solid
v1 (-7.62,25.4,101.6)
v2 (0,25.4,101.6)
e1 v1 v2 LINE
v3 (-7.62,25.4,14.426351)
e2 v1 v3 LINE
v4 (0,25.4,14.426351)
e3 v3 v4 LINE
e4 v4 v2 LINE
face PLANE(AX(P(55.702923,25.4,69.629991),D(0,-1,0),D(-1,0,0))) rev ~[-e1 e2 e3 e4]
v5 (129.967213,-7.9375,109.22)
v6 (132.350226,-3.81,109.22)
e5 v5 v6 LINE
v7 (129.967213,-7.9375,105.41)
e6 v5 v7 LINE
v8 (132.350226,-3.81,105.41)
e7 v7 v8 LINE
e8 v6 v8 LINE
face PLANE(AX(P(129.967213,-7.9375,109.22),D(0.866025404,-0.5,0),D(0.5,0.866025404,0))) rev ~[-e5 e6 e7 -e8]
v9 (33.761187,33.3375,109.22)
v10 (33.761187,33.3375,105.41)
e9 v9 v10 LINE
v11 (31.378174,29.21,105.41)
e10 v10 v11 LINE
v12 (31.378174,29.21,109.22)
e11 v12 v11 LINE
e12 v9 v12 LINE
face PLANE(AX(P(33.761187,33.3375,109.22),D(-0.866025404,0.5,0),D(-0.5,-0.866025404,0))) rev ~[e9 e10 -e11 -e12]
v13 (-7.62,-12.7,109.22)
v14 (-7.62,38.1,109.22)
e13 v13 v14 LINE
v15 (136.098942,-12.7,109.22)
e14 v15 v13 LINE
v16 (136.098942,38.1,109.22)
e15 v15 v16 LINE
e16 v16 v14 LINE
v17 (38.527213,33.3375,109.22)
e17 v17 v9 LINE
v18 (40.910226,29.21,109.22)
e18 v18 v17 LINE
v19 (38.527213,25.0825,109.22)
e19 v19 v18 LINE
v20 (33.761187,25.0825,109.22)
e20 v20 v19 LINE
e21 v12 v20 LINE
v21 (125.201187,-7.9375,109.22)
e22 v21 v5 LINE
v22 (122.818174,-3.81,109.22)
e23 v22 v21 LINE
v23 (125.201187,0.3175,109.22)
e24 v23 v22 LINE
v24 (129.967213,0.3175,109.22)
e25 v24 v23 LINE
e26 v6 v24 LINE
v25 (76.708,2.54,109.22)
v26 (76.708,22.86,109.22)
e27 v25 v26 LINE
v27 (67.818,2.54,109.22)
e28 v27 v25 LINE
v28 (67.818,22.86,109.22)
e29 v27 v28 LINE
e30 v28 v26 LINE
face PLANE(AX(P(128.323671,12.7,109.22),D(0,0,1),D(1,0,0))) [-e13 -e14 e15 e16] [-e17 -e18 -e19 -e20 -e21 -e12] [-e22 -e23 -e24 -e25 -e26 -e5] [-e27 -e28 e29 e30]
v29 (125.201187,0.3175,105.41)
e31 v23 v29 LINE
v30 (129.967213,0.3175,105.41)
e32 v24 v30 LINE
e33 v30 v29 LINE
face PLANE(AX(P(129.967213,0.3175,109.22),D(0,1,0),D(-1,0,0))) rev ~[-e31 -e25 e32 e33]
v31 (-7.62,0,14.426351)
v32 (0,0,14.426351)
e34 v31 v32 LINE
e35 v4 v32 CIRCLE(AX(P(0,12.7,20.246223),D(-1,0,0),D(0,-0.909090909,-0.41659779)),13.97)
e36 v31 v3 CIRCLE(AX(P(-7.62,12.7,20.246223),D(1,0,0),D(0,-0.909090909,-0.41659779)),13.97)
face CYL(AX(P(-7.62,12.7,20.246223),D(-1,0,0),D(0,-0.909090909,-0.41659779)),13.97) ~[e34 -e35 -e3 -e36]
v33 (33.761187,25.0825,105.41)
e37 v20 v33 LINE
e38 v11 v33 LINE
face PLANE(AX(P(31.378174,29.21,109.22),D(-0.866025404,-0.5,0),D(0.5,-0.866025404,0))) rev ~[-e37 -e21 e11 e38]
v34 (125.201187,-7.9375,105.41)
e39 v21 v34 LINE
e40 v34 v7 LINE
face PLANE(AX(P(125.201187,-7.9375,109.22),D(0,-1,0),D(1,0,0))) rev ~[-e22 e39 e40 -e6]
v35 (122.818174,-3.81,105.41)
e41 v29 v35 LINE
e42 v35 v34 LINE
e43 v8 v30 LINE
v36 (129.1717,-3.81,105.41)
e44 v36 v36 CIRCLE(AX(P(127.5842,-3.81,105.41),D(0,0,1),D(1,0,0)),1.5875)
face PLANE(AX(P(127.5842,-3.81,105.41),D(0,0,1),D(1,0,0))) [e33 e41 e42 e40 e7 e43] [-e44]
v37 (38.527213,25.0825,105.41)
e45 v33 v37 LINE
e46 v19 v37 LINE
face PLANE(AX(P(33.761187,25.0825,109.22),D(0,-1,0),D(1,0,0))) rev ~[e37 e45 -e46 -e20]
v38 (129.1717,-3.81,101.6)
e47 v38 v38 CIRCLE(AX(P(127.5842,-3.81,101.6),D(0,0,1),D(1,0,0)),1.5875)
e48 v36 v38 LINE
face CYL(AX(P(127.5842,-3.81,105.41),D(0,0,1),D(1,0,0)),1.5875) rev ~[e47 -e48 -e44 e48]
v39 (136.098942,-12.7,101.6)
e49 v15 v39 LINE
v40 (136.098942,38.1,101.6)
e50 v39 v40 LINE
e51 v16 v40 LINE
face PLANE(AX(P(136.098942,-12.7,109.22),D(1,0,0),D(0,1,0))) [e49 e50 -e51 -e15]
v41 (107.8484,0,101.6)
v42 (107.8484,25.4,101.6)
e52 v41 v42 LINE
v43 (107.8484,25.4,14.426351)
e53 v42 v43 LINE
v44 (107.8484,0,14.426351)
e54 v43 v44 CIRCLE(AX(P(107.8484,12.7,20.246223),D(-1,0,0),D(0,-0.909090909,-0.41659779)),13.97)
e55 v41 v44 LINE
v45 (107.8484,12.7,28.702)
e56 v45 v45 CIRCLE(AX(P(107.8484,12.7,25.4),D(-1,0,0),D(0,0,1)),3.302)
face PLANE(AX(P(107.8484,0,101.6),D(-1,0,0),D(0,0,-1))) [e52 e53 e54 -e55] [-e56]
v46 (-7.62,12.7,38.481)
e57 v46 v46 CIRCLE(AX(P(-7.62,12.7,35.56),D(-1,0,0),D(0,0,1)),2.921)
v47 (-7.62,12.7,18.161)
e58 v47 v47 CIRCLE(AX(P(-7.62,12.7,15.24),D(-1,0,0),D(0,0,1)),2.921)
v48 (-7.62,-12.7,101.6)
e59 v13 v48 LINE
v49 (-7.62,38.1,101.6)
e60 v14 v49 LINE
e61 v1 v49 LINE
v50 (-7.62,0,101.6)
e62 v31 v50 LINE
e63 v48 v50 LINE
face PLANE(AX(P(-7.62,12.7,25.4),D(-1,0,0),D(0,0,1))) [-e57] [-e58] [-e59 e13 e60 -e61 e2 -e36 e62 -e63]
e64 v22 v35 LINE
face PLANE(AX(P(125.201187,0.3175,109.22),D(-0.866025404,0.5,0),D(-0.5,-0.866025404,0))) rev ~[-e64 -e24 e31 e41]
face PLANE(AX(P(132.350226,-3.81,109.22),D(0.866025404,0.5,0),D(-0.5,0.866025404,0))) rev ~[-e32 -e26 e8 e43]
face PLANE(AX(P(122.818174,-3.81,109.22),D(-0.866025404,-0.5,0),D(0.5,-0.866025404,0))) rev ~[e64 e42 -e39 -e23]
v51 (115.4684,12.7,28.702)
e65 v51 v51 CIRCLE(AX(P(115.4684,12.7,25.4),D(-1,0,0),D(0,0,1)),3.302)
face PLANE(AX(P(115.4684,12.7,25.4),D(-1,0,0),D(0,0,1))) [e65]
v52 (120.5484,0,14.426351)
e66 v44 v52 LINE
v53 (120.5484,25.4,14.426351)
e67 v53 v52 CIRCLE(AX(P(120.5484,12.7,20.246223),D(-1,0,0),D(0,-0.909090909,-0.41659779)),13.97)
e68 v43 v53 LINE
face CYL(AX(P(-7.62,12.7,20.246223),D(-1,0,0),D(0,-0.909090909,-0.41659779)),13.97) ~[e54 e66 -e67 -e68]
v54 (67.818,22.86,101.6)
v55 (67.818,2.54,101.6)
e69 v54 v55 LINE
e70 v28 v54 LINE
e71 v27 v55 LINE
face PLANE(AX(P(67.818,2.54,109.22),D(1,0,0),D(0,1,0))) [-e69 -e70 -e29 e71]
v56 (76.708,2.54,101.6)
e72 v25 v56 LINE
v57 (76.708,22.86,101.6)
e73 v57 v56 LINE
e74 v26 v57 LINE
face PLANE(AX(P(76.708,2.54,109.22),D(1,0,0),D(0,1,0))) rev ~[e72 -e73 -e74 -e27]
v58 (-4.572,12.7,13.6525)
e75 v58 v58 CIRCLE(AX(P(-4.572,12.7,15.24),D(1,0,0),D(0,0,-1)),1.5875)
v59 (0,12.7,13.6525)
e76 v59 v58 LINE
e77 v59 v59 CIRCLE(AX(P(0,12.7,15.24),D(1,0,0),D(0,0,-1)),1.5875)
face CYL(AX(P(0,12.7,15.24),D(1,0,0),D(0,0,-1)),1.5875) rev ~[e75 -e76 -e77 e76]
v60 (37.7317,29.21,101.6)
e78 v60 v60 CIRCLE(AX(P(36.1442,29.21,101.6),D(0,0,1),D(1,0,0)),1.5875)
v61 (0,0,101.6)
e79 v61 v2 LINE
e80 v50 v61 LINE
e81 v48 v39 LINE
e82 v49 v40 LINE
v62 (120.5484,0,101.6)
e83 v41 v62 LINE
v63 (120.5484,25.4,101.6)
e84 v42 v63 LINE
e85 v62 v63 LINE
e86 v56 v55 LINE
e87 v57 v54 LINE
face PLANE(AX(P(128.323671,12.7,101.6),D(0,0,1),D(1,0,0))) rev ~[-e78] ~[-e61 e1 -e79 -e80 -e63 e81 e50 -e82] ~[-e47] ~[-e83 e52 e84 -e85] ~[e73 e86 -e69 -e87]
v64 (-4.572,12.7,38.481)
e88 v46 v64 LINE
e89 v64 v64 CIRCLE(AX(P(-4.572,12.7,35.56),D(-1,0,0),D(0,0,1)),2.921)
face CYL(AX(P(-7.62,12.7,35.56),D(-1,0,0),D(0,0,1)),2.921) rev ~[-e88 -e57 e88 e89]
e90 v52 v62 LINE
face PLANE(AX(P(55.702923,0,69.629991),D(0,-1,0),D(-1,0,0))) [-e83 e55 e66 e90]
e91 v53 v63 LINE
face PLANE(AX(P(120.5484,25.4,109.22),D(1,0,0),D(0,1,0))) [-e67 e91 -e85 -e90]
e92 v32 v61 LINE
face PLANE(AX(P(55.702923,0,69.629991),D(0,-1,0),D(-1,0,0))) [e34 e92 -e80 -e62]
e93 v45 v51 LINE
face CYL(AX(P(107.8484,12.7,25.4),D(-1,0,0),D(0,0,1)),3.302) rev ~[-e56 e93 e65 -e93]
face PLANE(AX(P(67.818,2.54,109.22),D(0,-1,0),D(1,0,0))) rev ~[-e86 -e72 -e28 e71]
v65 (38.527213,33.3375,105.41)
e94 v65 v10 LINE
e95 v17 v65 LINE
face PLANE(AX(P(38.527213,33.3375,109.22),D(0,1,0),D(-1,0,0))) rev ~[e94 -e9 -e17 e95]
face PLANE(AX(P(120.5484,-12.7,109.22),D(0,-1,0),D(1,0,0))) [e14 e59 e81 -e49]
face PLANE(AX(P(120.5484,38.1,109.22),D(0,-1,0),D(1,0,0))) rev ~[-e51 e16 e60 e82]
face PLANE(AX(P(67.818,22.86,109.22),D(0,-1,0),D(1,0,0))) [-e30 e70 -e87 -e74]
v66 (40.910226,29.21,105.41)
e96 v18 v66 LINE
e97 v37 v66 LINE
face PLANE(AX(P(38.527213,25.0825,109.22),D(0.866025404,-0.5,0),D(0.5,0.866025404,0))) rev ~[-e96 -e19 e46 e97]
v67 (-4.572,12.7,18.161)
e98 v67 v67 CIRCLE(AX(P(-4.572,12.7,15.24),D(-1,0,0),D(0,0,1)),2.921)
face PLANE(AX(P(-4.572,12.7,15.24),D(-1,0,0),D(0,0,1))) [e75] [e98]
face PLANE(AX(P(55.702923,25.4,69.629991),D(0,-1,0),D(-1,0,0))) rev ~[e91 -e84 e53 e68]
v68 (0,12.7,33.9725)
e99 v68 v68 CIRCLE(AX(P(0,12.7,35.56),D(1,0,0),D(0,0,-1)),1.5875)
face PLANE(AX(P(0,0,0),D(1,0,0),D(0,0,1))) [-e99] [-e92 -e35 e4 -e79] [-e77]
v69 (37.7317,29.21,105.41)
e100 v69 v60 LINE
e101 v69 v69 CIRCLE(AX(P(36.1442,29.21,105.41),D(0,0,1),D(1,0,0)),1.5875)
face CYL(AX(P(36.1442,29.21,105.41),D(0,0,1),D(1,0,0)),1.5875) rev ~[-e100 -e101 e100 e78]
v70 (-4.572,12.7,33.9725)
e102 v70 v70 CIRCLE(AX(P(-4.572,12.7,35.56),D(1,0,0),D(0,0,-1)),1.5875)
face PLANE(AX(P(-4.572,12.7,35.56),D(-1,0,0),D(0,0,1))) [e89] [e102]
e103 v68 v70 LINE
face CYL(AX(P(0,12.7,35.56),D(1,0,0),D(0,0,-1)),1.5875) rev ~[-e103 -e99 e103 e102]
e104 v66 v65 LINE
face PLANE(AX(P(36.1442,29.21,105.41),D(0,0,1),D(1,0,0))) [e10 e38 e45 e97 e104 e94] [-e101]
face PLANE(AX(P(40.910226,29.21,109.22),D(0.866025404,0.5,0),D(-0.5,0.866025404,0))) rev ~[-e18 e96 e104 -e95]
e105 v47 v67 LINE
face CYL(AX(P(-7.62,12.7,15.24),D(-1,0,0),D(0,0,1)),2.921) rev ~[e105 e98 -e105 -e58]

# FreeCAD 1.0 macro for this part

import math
import FreeCAD as App
import Part
import Sketcher
Q = App.Units.Quantity


def add_polygon(sketch, points):
    """Adds a closed chain of lines whose ends are joined by coincident constraints."""
    first, n = sketch.GeometryCount, len(points)
    for a, b in zip(points, points[1:] + points[:1]):
        sketch.addGeometry(Part.LineSegment(App.Vector(*a, 0), App.Vector(*b, 0)), False)
    for i in range(n):
        sketch.addConstraint(Sketcher.Constraint("Coincident", first + i, 2, first + (i + 1) % n, 1))

doc = App.newDocument("Part")
body = doc.addObject("PartDesign::Body", "Body")

sketch1 = doc.addObject("Sketcher::SketchObject", "Sketch")
body.addObject(sketch1)
sketch1.AttachmentSupport = (doc.XZ_Plane, [""])
sketch1.MapMode = "FlatFace"
add_polygon(sketch1, [(0, 101.6), (0, 0), (-7.62, 0), (-7.62, 109.22), (120.5484, 109.22), (120.5484, 0), (107.8484, 0), (107.8484, 101.6)])
sketch1.addConstraint(Sketcher.Constraint("Vertical", 0))
sketch1.addConstraint(Sketcher.Constraint("Horizontal", 1))
sketch1.addConstraint(Sketcher.Constraint("Vertical", 2))
sketch1.addConstraint(Sketcher.Constraint("Horizontal", 3))
sketch1.addConstraint(Sketcher.Constraint("Vertical", 4))
sketch1.addConstraint(Sketcher.Constraint("Horizontal", 5))
sketch1.addConstraint(Sketcher.Constraint("Vertical", 6))
sketch1.addConstraint(Sketcher.Constraint("Horizontal", 7))
sketch1.addConstraint(Sketcher.Constraint("Coincident", 0, 2, -1, 1))
sketch1.addConstraint(Sketcher.Constraint("PointOnObject", 4, 2, -1))
sketch1.addConstraint(Sketcher.Constraint("DistanceY", 0, 2, 0, 1, Q("4 in")))
sketch1.addConstraint(Sketcher.Constraint("DistanceX", 1, 2, 1, 1, Q("0.3 in")))
sketch1.addConstraint(Sketcher.Constraint("DistanceX", 5, 2, 5, 1, Q("0.5 in")))
sketch1.addConstraint(Sketcher.Constraint("DistanceY", 2, 1, 2, 2, Q("4.3 in")))
sketch1.addConstraint(Sketcher.Constraint("DistanceX", 3, 1, 3, 2, Q("5.046 in")))
pad1 = doc.addObject("PartDesign::Pad", "Pad")
body.addObject(pad1)
pad1.Profile = sketch1
pad1.Length = Q("1 in")
pad1.Reversed = True

sketch2 = doc.addObject("Sketcher::SketchObject", "Sketch001")
body.addObject(sketch2)
sketch2.AttachmentSupport = (doc.YZ_Plane, [""])
sketch2.MapMode = "FlatFace"
sketch2.AttachmentOffset = App.Placement(App.Vector(0, 0, 4.246 * 25.4), App.Rotation())
sketch2.addGeometry(Part.Circle(App.Vector(12.7, 25.4, 0), App.Vector(0, 0, 1), 3.302), False)
sketch2.addConstraint(Sketcher.Constraint("Diameter", 0, Q("0.26 in")))
sketch2.addConstraint(Sketcher.Constraint("DistanceY", -1, 1, 0, 3, Q("1 in")))
sketch2.addConstraint(Sketcher.Constraint("DistanceX", -1, 1, 0, 3, Q("0.5 in")))
pocket1 = doc.addObject("PartDesign::Pocket", "Pocket")
body.addObject(pocket1)
pocket1.Profile = sketch2
pocket1.Length = Q("0.3 in")
pocket1.Reversed = True

sketch3 = doc.addObject("Sketcher::SketchObject", "Sketch002")
body.addObject(sketch3)
sketch3.AttachmentSupport = (doc.YZ_Plane, [""])
sketch3.MapMode = "FlatFace"
sketch3.addGeometry(Part.Circle(App.Vector(12.7, 25.4, 0), App.Vector(0, 0, 1), 3.175), False)
sketch3.addGeometry(Part.Circle(App.Vector(12.7, 15.24, 0), App.Vector(0, 0, 1), 1.5875), False)
sketch3.addGeometry(Part.Circle(App.Vector(12.7, 35.56, 0), App.Vector(0, 0, 1), 1.5875), False)
sketch3.addConstraint(Sketcher.Constraint("Equal", 1, 2))
sketch3.addConstraint(Sketcher.Constraint("Vertical", 0, 3, 1, 3))
sketch3.addConstraint(Sketcher.Constraint("Vertical", 1, 3, 2, 3))
sketch3.addConstraint(Sketcher.Constraint("Diameter", 0, Q("0.25 in")))
sketch3.addConstraint(Sketcher.Constraint("Diameter", 1, Q("0.125 in")))
sketch3.addConstraint(Sketcher.Constraint("DistanceY", -1, 1, 0, 3, Q("1 in")))
sketch3.addConstraint(Sketcher.Constraint("DistanceX", -1, 1, 0, 3, Q("0.5 in")))
sketch3.addConstraint(Sketcher.Constraint("DistanceY", -1, 1, 1, 3, Q("0.6 in")))
sketch3.addConstraint(Sketcher.Constraint("DistanceY", -1, 1, 2, 3, Q("1.4 in")))
pocket2 = doc.addObject("PartDesign::Pocket", "Pocket001")
body.addObject(pocket2)
pocket2.Profile = sketch3
pocket2.Length = Q("0.3 in")

sketch4 = doc.addObject("Sketcher::SketchObject", "Sketch003")
body.addObject(sketch4)
sketch4.AttachmentSupport = (doc.XY_Plane, [""])
sketch4.MapMode = "FlatFace"
sketch4.AttachmentOffset = App.Placement(App.Vector(0, 0, 4.3 * 25.4), App.Rotation())
add_polygon(sketch4, [(-7.62, 38.1), (-7.62, 25.4), (120.5484, 25.4), (120.5484, 38.1)])
add_polygon(sketch4, [(-7.62, 0), (-7.62, -12.7), (120.5484, -12.7), (120.5484, 0)])
sketch4.addConstraint(Sketcher.Constraint("Vertical", 0))
sketch4.addConstraint(Sketcher.Constraint("Horizontal", 1))
sketch4.addConstraint(Sketcher.Constraint("Vertical", 2))
sketch4.addConstraint(Sketcher.Constraint("Horizontal", 3))
sketch4.addConstraint(Sketcher.Constraint("Vertical", 4))
sketch4.addConstraint(Sketcher.Constraint("Horizontal", 5))
sketch4.addConstraint(Sketcher.Constraint("Vertical", 6))
sketch4.addConstraint(Sketcher.Constraint("Horizontal", 7))
sketch4.addConstraint(Sketcher.Constraint("PointOnObject", 6, 2, -1))
sketch4.addConstraint(Sketcher.Constraint("Vertical", 3, 2, 4, 2))
sketch4.addConstraint(Sketcher.Constraint("Vertical", 2, 2, 5, 2))
sketch4.addConstraint(Sketcher.Constraint("Equal", 2, 4))
sketch4.addConstraint(Sketcher.Constraint("DistanceY", 0, 2, 0, 1, Q("0.5 in")))
sketch4.addConstraint(Sketcher.Constraint("DistanceY", -1, 1, 0, 2, Q("1 in")))
sketch4.addConstraint(Sketcher.Constraint("DistanceX", 0, 2, -1, 1, Q("0.3 in")))
sketch4.addConstraint(Sketcher.Constraint("DistanceX", 1, 1, 1, 2, Q("5.046 in")))
pad2 = doc.addObject("PartDesign::Pad", "Pad001")
body.addObject(pad2)
pad2.Profile = sketch4
pad2.Length = Q("0.3 in")
pad2.Reversed = True

sketch5 = doc.addObject("Sketcher::SketchObject", "Sketch004")
body.addObject(sketch5)
sketch5.AttachmentSupport = (doc.XY_Plane, [""])
sketch5.MapMode = "FlatFace"
sketch5.AttachmentOffset = App.Placement(App.Vector(0, 0, 4.3 * 25.4), App.Rotation())
add_polygon(sketch5, [(120.5484, 38.1), (120.5484, -12.7), (136.098942, -12.7), (136.098942, 38.1)])
sketch5.addConstraint(Sketcher.Constraint("Vertical", 0))
sketch5.addConstraint(Sketcher.Constraint("Horizontal", 1))
sketch5.addConstraint(Sketcher.Constraint("Vertical", 2))
sketch5.addConstraint(Sketcher.Constraint("Horizontal", 3))
sketch5.addConstraint(Sketcher.Constraint("DistanceY", 0, 2, 0, 1, Q("2 in")))
sketch5.addConstraint(Sketcher.Constraint("DistanceY", 0, 2, -1, 1, Q("0.5 in")))
sketch5.addConstraint(Sketcher.Constraint("DistanceX", -1, 1, 0, 2, Q("4.746 in")))
sketch5.addConstraint(Sketcher.Constraint("DistanceX", 1, 1, 1, 2, Q("15.550542 mm")))
pad3 = doc.addObject("PartDesign::Pad", "Pad002")
body.addObject(pad3)
pad3.Profile = sketch5
pad3.Length = Q("0.3 in")
pad3.Reversed = True

sketch6 = doc.addObject("Sketcher::SketchObject", "Sketch005")
body.addObject(sketch6)
sketch6.AttachmentSupport = (doc.XY_Plane, [""])
sketch6.MapMode = "FlatFace"
sketch6.AttachmentOffset = App.Placement(App.Vector(0, 0, 4.3 * 25.4), App.Rotation())
add_polygon(sketch6, [(40.910226, 29.21), (38.527213, 33.3375), (33.761187, 33.3375), (31.378174, 29.21), (33.761187, 25.0825), (38.527213, 25.0825)])
add_polygon(sketch6, [(132.350226, -3.81), (129.967213, 0.3175), (125.201187, 0.3175), (122.818174, -3.81), (125.201187, -7.9375), (129.967213, -7.9375)])
sketch6.addConstraint(Sketcher.Constraint("Horizontal", 1))
sketch6.addConstraint(Sketcher.Constraint("Horizontal", 4))
sketch6.addConstraint(Sketcher.Constraint("Horizontal", 7))
sketch6.addConstraint(Sketcher.Constraint("Horizontal", 10))
sketch6.addConstraint(Sketcher.Constraint("Parallel", 0, 3))
sketch6.addConstraint(Sketcher.Constraint("Parallel", 2, 5))
sketch6.addConstraint(Sketcher.Constraint("Parallel", 3, 6))
sketch6.addConstraint(Sketcher.Constraint("Parallel", 5, 8))
sketch6.addConstraint(Sketcher.Constraint("Parallel", 6, 9))
sketch6.addConstraint(Sketcher.Constraint("Parallel", 8, 11))
sketch6.addConstraint(Sketcher.Constraint("Horizontal", 2, 2, 5, 2))
sketch6.addConstraint(Sketcher.Constraint("Horizontal", 8, 2, 11, 2))
sketch6.addConstraint(Sketcher.Constraint("Vertical", 1, 2, 3, 2))
sketch6.addConstraint(Sketcher.Constraint("Vertical", 0, 2, 4, 2))
sketch6.addConstraint(Sketcher.Constraint("Vertical", 7, 2, 9, 2))
sketch6.addConstraint(Sketcher.Constraint("Equal", 4, 7))
sketch6.addConstraint(Sketcher.Constraint("Equal", 5, 6))
sketch6.addConstraint(Sketcher.Constraint("Angle", 0, Q("120 deg")))
sketch6.addConstraint(Sketcher.Constraint("DistanceX", 4, 2, 6, 2, Q("3.6 in")))
sketch6.addConstraint(Sketcher.Constraint("DistanceY", 6, 2, 0, 2, Q("1.3 in")))
sketch6.addConstraint(Sketcher.Constraint("DistanceY", -1, 1, 2, 2, Q("1.15 in")))
sketch6.addConstraint(Sketcher.Constraint("DistanceY", -1, 1, 0, 2, Q("1.3125 in")))
sketch6.addConstraint(Sketcher.Constraint("DistanceX", 1, 2, 1, 1, Q("4.766026 mm")))
sketch6.addConstraint(Sketcher.Constraint("DistanceX", -1, 1, 0, 2, Q("38.527213 mm")))
pocket3 = doc.addObject("PartDesign::Pocket", "Pocket002")
body.addObject(pocket3)
pocket3.Profile = sketch6
pocket3.Length = Q("0.15 in")

sketch7 = doc.addObject("Sketcher::SketchObject", "Sketch006")
body.addObject(sketch7)
sketch7.AttachmentSupport = (doc.YZ_Plane, [""])
sketch7.MapMode = "FlatFace"
sketch7.AttachmentOffset = App.Placement(App.Vector(0, 0, -0.3 * 25.4), App.Rotation())
sketch7.addGeometry(Part.Circle(App.Vector(12.7, 15.24, 0), App.Vector(0, 0, 1), 2.921), False)
sketch7.addGeometry(Part.Circle(App.Vector(12.7, 35.56, 0), App.Vector(0, 0, 1), 2.921), False)
sketch7.addConstraint(Sketcher.Constraint("Equal", 0, 1))
sketch7.addConstraint(Sketcher.Constraint("Vertical", 0, 3, 1, 3))
sketch7.addConstraint(Sketcher.Constraint("Diameter", 0, Q("0.23 in")))
sketch7.addConstraint(Sketcher.Constraint("DistanceX", -1, 1, 0, 3, Q("0.5 in")))
sketch7.addConstraint(Sketcher.Constraint("DistanceY", -1, 1, 0, 3, Q("0.6 in")))
sketch7.addConstraint(Sketcher.Constraint("DistanceY", -1, 1, 1, 3, Q("1.4 in")))
pocket4 = doc.addObject("PartDesign::Pocket", "Pocket003")
body.addObject(pocket4)
pocket4.Profile = sketch7
pocket4.Length = Q("0.12 in")
pocket4.Reversed = True

sketch8 = doc.addObject("Sketcher::SketchObject", "Sketch007")
body.addObject(sketch8)
sketch8.AttachmentSupport = (doc.XY_Plane, [""])
sketch8.MapMode = "FlatFace"
sketch8.AttachmentOffset = App.Placement(App.Vector(0, 0, 4.15 * 25.4), App.Rotation())
sketch8.addGeometry(Part.Circle(App.Vector(36.1442, 29.21, 0), App.Vector(0, 0, 1), 1.5875), False)
sketch8.addGeometry(Part.Circle(App.Vector(127.5842, -3.81, 0), App.Vector(0, 0, 1), 1.5875), False)
sketch8.addConstraint(Sketcher.Constraint("Equal", 0, 1))
sketch8.addConstraint(Sketcher.Constraint("Diameter", 0, Q("0.125 in")))
sketch8.addConstraint(Sketcher.Constraint("DistanceX", 0, 3, 1, 3, Q("3.6 in")))
sketch8.addConstraint(Sketcher.Constraint("DistanceY", 1, 3, 0, 3, Q("1.3 in")))
sketch8.addConstraint(Sketcher.Constraint("DistanceY", -1, 1, 0, 3, Q("1.15 in")))
sketch8.addConstraint(Sketcher.Constraint("DistanceX", -1, 1, 0, 3, Q("1.423 in")))
pocket5 = doc.addObject("PartDesign::Pocket", "Pocket004")
body.addObject(pocket5)
pocket5.Profile = sketch8
pocket5.Type = "ThroughAll"

sketch9 = doc.addObject("Sketcher::SketchObject", "Sketch008")
body.addObject(sketch9)
sketch9.AttachmentSupport = (doc.XY_Plane, [""])
sketch9.MapMode = "FlatFace"
sketch9.AttachmentOffset = App.Placement(App.Vector(0, 0, 4.3 * 25.4), App.Rotation())
add_polygon(sketch9, [(67.818, 22.86), (67.818, 2.54), (76.708, 2.54), (76.708, 22.86)])
sketch9.addConstraint(Sketcher.Constraint("Vertical", 0))
sketch9.addConstraint(Sketcher.Constraint("Horizontal", 1))
sketch9.addConstraint(Sketcher.Constraint("Vertical", 2))
sketch9.addConstraint(Sketcher.Constraint("Horizontal", 3))
sketch9.addConstraint(Sketcher.Constraint("DistanceY", 0, 2, 0, 1, Q("0.8 in")))
sketch9.addConstraint(Sketcher.Constraint("DistanceX", 1, 1, 1, 2, Q("0.35 in")))
sketch9.addConstraint(Sketcher.Constraint("DistanceY", -1, 1, 0, 2, Q("0.1 in")))
sketch9.addConstraint(Sketcher.Constraint("DistanceX", -1, 1, 0, 2, Q("2.67 in")))
pocket6 = doc.addObject("PartDesign::Pocket", "Pocket005")
body.addObject(pocket6)
pocket6.Profile = sketch9
pocket6.Type = "UpToFirst"

sketch10 = doc.addObject("Sketcher::SketchObject", "Sketch009")
body.addObject(sketch10)
sketch10.AttachmentSupport = (doc.YZ_Plane, [""])
sketch10.MapMode = "FlatFace"
sketch10.AttachmentOffset = App.Placement(App.Vector(0, 0, -0.3 * 25.4), App.Rotation())
sketch10.addGeometry(Part.Circle(App.Vector(12.7, 25.4, 0), App.Vector(0, 0, 1), 3.175), False)
sketch10.addConstraint(Sketcher.Constraint("Diameter", 0, Q("0.25 in")))
sketch10.addConstraint(Sketcher.Constraint("DistanceY", -1, 1, 0, 3, Q("1 in")))
sketch10.addConstraint(Sketcher.Constraint("DistanceX", -1, 1, 0, 3, Q("0.5 in")))
pad4 = doc.addObject("PartDesign::Pad", "Pad003")
body.addObject(pad4)
pad4.Profile = sketch10
pad4.Length = Q("0.3 in")

sketch11 = doc.addObject("Sketcher::SketchObject", "Sketch010")
body.addObject(sketch11)
sketch11.AttachmentSupport = (doc.YZ_Plane, [""])
sketch11.MapMode = "FlatFace"
sketch11.AttachmentOffset = App.Placement(App.Vector(0, 0, -0.3 * 25.4), App.Rotation())
sketch11.addGeometry(Part.LineSegment(App.Vector(25.4, 14.426351, 0), App.Vector(25.4, 0, 0)), False)
sketch11.addGeometry(Part.LineSegment(App.Vector(25.4, 0, 0), App.Vector(0, 0, 0)), False)
sketch11.addGeometry(Part.LineSegment(App.Vector(0, 0, 0), App.Vector(0, 14.426351, 0)), False)
sketch11.addGeometry(Part.ArcOfCircle(Part.Circle(App.Vector(12.7, 20.246223, 0), App.Vector(0, 0, 1), 13.97), math.radians(-155.380023), math.radians(-24.619977)), False)
sketch11.addConstraint(Sketcher.Constraint("Coincident", 0, 2, 1, 1))
sketch11.addConstraint(Sketcher.Constraint("Coincident", 1, 2, 2, 1))
sketch11.addConstraint(Sketcher.Constraint("Coincident", 2, 2, 3, 1))
sketch11.addConstraint(Sketcher.Constraint("Coincident", 3, 2, 0, 1))
sketch11.addConstraint(Sketcher.Constraint("Vertical", 0))
sketch11.addConstraint(Sketcher.Constraint("Horizontal", 1))
sketch11.addConstraint(Sketcher.Constraint("Vertical", 2))
sketch11.addConstraint(Sketcher.Constraint("Coincident", 1, 2, -1, 1))
sketch11.addConstraint(Sketcher.Constraint("Horizontal", 2, 2, 3, 2))
sketch11.addConstraint(Sketcher.Constraint("DistanceX", 1, 2, 1, 1, Q("1 in")))
sketch11.addConstraint(Sketcher.Constraint("Radius", 3, Q("0.55 in")))
sketch11.addConstraint(Sketcher.Constraint("DistanceY", 0, 2, 0, 1, Q("14.426351 mm")))
pocket7 = doc.addObject("PartDesign::Pocket", "Pocket006")
body.addObject(pocket7)
pocket7.Profile = sketch11
pocket7.Type = "ThroughAll"
pocket7.Midplane = True

doc.recompute()
